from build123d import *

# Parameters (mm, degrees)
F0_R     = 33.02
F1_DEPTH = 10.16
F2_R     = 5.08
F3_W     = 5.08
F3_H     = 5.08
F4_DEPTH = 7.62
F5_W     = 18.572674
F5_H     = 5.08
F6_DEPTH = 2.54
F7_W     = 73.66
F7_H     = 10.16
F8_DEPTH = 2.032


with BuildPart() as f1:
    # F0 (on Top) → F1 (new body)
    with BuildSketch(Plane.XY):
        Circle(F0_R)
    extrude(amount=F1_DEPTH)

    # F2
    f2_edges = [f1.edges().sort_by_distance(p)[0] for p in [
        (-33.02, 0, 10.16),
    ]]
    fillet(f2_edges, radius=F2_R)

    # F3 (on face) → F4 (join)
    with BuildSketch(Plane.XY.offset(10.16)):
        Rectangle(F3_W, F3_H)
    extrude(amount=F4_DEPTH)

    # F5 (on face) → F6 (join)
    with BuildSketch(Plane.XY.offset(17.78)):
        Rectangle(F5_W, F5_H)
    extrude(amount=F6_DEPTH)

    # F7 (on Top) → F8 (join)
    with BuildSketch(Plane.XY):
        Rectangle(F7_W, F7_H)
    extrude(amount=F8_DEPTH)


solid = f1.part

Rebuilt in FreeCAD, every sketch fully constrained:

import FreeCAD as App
import Part
import Sketcher

V = App.Vector
Q = App.Units.Quantity


def edges_at(feature, points):
    """Names of the edges that pass closest to the given points."""
    edges = feature.Shape.Edges
    near = lambda p: min(range(len(edges)), key=lambda i: edges[i].distToShape(Part.Vertex(*p))[0])
    return sorted({f"Edge{near(p) + 1}" for p in points})

doc = App.newDocument("Part")
params = doc.addObject("Spreadsheet::Sheet", "Params")
for row, (alias, value) in enumerate([
    ("sketch1_diameter", "2.6 in"),
    ("pad1_length", "0.4 in"),
    ("fillet_radius", "0.2 in"),
    ("sketch2_width", "0.2 in"),
    ("pad2_length", "0.3 in"),
    ("sketch3_height", "0.2 in"),
    ("pad3_length", "0.1 in"),
    ("sketch4_width", "2.9 in"),
    ("sketch4_height", "0.4 in"),
    ("pad4_length", "0.08 in"),
], start=1):
    params.set(f"A{row}", alias)
    params.set(f"B{row}", "=" + value)
    params.setAlias(f"B{row}", alias)

body = doc.addObject("PartDesign::Body", "Body")

# Sketch on XY plane
sketch1 = doc.addObject("Sketcher::SketchObject", "Sketch")
body.addObject(sketch1)
sketch1.AttachmentSupport = (doc.XY_Plane, [""])
sketch1.MapMode = "FlatFace"
sketch1.addGeometry(Part.Circle(V(0, 0, 0), V(0, 0, 1), 33.02), False)
sketch1.addConstraint(Sketcher.Constraint("Coincident", 0, 3, -1, 1))
sketch1.addConstraint(Sketcher.Constraint("Diameter", 0, Q("2.6 in")))
sketch1.setExpression("Constraints[1]", "Params.sketch1_diameter")
pad1 = doc.addObject("PartDesign::Pad", "Pad")
body.addObject(pad1)
pad1.Profile = sketch1
pad1.setExpression("Length", "Params.pad1_length")
doc.recompute()

fillet = doc.addObject("PartDesign::Fillet", "Fillet")
body.addObject(fillet)
fillet.Base = (pad1, edges_at(pad1, [(-33.02, 0, 10.16)]))
fillet.setExpression("Radius", "Params.fillet_radius")

# Sketch on XY plane
sketch2 = doc.addObject("Sketcher::SketchObject", "Sketch001")
body.addObject(sketch2)
sketch2.AttachmentSupport = (doc.XY_Plane, [""])
sketch2.MapMode = "FlatFace"
sketch2.AttachmentOffset = App.Placement(V(0, 0, 0.4 * 25.4), App.Rotation())
sketch2.addGeometry(Part.LineSegment(V(-2.54, 2.54, 0), V(-2.54, -2.54, 0)), False)
sketch2.addGeometry(Part.LineSegment(V(-2.54, -2.54, 0), V(2.54, -2.54, 0)), False)
sketch2.addGeometry(Part.LineSegment(V(2.54, -2.54, 0), V(2.54, 2.54, 0)), False)
sketch2.addGeometry(Part.LineSegment(V(2.54, 2.54, 0), V(-2.54, 2.54, 0)), False)
sketch2.addConstraint(Sketcher.Constraint("Coincident", 0, 2, 1, 1))
sketch2.addConstraint(Sketcher.Constraint("Coincident", 1, 2, 2, 1))
sketch2.addConstraint(Sketcher.Constraint("Coincident", 2, 2, 3, 1))
sketch2.addConstraint(Sketcher.Constraint("Coincident", 3, 2, 0, 1))
sketch2.addConstraint(Sketcher.Constraint("Vertical", 0))
sketch2.addConstraint(Sketcher.Constraint("Horizontal", 1))
sketch2.addConstraint(Sketcher.Constraint("Vertical", 2))
sketch2.addConstraint(Sketcher.Constraint("Horizontal", 3))
sketch2.addConstraint(Sketcher.Constraint("Symmetric", 0, 2, 2, 2, -1, 1))
sketch2.addConstraint(Sketcher.Constraint("Equal", 3, 0))
sketch2.addConstraint(Sketcher.Constraint("DistanceX", 1, 1, 1, 2, Q("0.2 in")))
sketch2.setExpression("Constraints[10]", "Params.sketch2_width")
pad2 = doc.addObject("PartDesign::Pad", "Pad001")
body.addObject(pad2)
pad2.Profile = sketch2
pad2.setExpression("Length", "Params.pad2_length")

# Sketch on XY plane
sketch3 = doc.addObject("Sketcher::SketchObject", "Sketch002")
body.addObject(sketch3)
sketch3.AttachmentSupport = (doc.XY_Plane, [""])
sketch3.MapMode = "FlatFace"
sketch3.AttachmentOffset = App.Placement(V(0, 0, 0.7 * 25.4), App.Rotation())
sketch3.addGeometry(Part.LineSegment(V(-9.286337, 2.54, 0), V(-9.286337, -2.54, 0)), False)
sketch3.addGeometry(Part.LineSegment(V(-9.286337, -2.54, 0), V(9.286337, -2.54, 0)), False)
sketch3.addGeometry(Part.LineSegment(V(9.286337, -2.54, 0), V(9.286337, 2.54, 0)), False)
sketch3.addGeometry(Part.LineSegment(V(9.286337, 2.54, 0), V(-9.286337, 2.54, 0)), False)
sketch3.addConstraint(Sketcher.Constraint("Coincident", 0, 2, 1, 1))
sketch3.addConstraint(Sketcher.Constraint("Coincident", 1, 2, 2, 1))
sketch3.addConstraint(Sketcher.Constraint("Coincident", 2, 2, 3, 1))
sketch3.addConstraint(Sketcher.Constraint("Coincident", 3, 2, 0, 1))
sketch3.addConstraint(Sketcher.Constraint("Vertical", 0))
sketch3.addConstraint(Sketcher.Constraint("Horizontal", 1))
sketch3.addConstraint(Sketcher.Constraint("Vertical", 2))
sketch3.addConstraint(Sketcher.Constraint("Horizontal", 3))
sketch3.addConstraint(Sketcher.Constraint("Symmetric", 0, 2, 2, 2, -1, 1))
sketch3.addConstraint(Sketcher.Constraint("DistanceY", 0, 2, 0, 1, Q("0.2 in")))
sketch3.addConstraint(Sketcher.Constraint("DistanceX", 1, 1, 1, 2, Q("18.572674 mm")))
sketch3.setExpression("Constraints[9]", "Params.sketch3_height")
pad3 = doc.addObject("PartDesign::Pad", "Pad002")
body.addObject(pad3)
pad3.Profile = sketch3
pad3.setExpression("Length", "Params.pad3_length")

# Sketch on XY plane
sketch4 = doc.addObject("Sketcher::SketchObject", "Sketch003")
body.addObject(sketch4)
sketch4.AttachmentSupport = (doc.XY_Plane, [""])
sketch4.MapMode = "FlatFace"
sketch4.addGeometry(Part.LineSegment(V(-36.83, 5.08, 0), V(-36.83, -5.08, 0)), False)
sketch4.addGeometry(Part.LineSegment(V(-36.83, -5.08, 0), V(36.83, -5.08, 0)), False)
sketch4.addGeometry(Part.LineSegment(V(36.83, -5.08, 0), V(36.83, 5.08, 0)), False)
sketch4.addGeometry(Part.LineSegment(V(36.83, 5.08, 0), V(-36.83, 5.08, 0)), False)
sketch4.addConstraint(Sketcher.Constraint("Coincident", 0, 2, 1, 1))
sketch4.addConstraint(Sketcher.Constraint("Coincident", 1, 2, 2, 1))
sketch4.addConstraint(Sketcher.Constraint("Coincident", 2, 2, 3, 1))
sketch4.addConstraint(Sketcher.Constraint("Coincident", 3, 2, 0, 1))
sketch4.addConstraint(Sketcher.Constraint("Vertical", 0))
sketch4.addConstraint(Sketcher.Constraint("Horizontal", 1))
sketch4.addConstraint(Sketcher.Constraint("Vertical", 2))
sketch4.addConstraint(Sketcher.Constraint("Horizontal", 3))
sketch4.addConstraint(Sketcher.Constraint("Symmetric", 0, 2, 2, 2, -1, 1))
sketch4.addConstraint(Sketcher.Constraint("DistanceX", 1, 1, 1, 2, Q("2.9 in")))
sketch4.addConstraint(Sketcher.Constraint("DistanceY", 0, 2, 0, 1, Q("0.4 in")))
sketch4.setExpression("Constraints[9]", "Params.sketch4_width")
sketch4.setExpression("Constraints[10]", "Params.sketch4_height")
pad4 = doc.addObject("PartDesign::Pad", "Pad003")
body.addObject(pad4)
pad4.Profile = sketch4
pad4.setExpression("Length", "Params.pad4_length")

doc.recompute()
